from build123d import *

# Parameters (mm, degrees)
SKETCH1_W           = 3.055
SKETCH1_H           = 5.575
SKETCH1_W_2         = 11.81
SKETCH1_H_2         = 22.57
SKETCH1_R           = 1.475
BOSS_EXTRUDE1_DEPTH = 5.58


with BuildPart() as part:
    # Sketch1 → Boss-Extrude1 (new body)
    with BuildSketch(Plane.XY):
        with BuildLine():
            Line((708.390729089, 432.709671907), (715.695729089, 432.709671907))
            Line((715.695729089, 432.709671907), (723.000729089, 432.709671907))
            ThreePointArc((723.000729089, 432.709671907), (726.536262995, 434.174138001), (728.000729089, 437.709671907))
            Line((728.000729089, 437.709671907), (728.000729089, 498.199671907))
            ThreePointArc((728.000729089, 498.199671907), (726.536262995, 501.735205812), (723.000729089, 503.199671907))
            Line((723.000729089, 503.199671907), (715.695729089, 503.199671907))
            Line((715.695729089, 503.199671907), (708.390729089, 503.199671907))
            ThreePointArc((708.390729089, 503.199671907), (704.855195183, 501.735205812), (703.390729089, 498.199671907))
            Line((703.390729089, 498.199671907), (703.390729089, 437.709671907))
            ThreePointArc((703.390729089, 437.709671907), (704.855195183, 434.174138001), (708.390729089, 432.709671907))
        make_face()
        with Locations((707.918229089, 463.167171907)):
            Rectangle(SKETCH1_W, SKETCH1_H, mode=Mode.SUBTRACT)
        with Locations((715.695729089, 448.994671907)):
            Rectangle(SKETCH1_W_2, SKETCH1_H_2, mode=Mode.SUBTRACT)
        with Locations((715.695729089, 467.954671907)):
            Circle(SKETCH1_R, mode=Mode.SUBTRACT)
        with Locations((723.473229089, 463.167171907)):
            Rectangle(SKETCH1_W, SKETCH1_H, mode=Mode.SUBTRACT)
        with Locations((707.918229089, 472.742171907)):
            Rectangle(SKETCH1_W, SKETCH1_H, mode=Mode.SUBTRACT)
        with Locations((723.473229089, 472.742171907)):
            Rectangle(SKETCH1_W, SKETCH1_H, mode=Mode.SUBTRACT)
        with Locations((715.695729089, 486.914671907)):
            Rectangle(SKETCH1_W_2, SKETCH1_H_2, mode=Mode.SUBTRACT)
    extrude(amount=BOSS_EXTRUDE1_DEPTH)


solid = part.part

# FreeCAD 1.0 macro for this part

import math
import FreeCAD as App
import Part
import Sketcher

V = App.Vector


def add_polygon(sketch, points):
    """Adds a closed chain of lines whose ends are joined by coincident constraints."""
    first, n = sketch.GeometryCount, len(points)
    for a, b in zip(points, points[1:] + points[:1]):
        sketch.addGeometry(Part.LineSegment(App.Vector(*a, 0), App.Vector(*b, 0)), False)
    for i in range(n):
        sketch.addConstraint(Sketcher.Constraint("Coincident", first + i, 2, first + (i + 1) % n, 1))

doc = App.newDocument("Part")
body = doc.addObject("PartDesign::Body", "Body")

# Sketch on XY plane
sketch1 = body.newObject("Sketcher::SketchObject", "Sketch")
sketch1.AttachmentSupport = (doc.getObject("XY_Plane"), [""])
sketch1.MapMode = "FlatFace"
sketch1.addGeometry(Part.LineSegment(V(708.4, 432.7, 0), V(723, 432.7, 0)), False)  # 0
sketch1.addGeometry(Part.ArcOfCircle(Part.Circle(V(723, 437.7, 0), V(0, 0, 1), 5), math.radians(-90), math.radians(0)), False)  # 1
sketch1.addGeometry(Part.LineSegment(V(728, 437.7, 0), V(728, 498.2, 0)), False)  # 2
sketch1.addGeometry(Part.ArcOfCircle(Part.Circle(V(723, 498.2, 0), V(0, 0, 1), 5), math.radians(0), math.radians(90)), False)  # 3
sketch1.addGeometry(Part.LineSegment(V(723, 503.2, 0), V(708.4, 503.2, 0)), False)  # 4
sketch1.addGeometry(Part.ArcOfCircle(Part.Circle(V(708.4, 498.2, 0), V(0, 0, 1), 5), math.radians(90), math.radians(180)), False)  # 5
sketch1.addGeometry(Part.LineSegment(V(703.4, 498.2, 0), V(703.4, 437.7, 0)), False)  # 6
sketch1.addGeometry(Part.ArcOfCircle(Part.Circle(V(708.4, 437.7, 0), V(0, 0, 1), 5), math.radians(180), math.radians(270)), False)  # 7
add_polygon(sketch1, [(709.4, 460.4), (706.4, 460.4), (706.4, 466), (709.4, 466)])  # lines 8-11
add_polygon(sketch1, [(721.6, 437.7), (709.8, 437.7), (709.8, 460.3), (721.6, 460.3)])  # lines 12-15
sketch1.addGeometry(Part.Circle(V(715.7, 468, 0), V(0, 0, 1), 1.5), False)  # 16
add_polygon(sketch1, [(725, 460.4), (721.9, 460.4), (721.9, 466), (725, 466)])  # lines 17-20
add_polygon(sketch1, [(709.4, 470), (706.4, 470), (706.4, 475.5), (709.4, 475.5)])  # lines 21-24
add_polygon(sketch1, [(725, 470), (721.9, 470), (721.9, 475.5), (725, 475.5)])  # lines 25-28
add_polygon(sketch1, [(721.6, 475.6), (709.8, 475.6), (709.8, 498.2), (721.6, 498.2)])  # lines 29-32
sketch1.addConstraint([
    Sketcher.Constraint("Tangent", 0, 2, 1, 1),
    Sketcher.Constraint("Tangent", 1, 2, 2, 1),
    Sketcher.Constraint("Tangent", 2, 2, 3, 1),
    Sketcher.Constraint("Tangent", 3, 2, 4, 1),
    Sketcher.Constraint("Tangent", 4, 2, 5, 1),
    Sketcher.Constraint("Tangent", 5, 2, 6, 1),
    Sketcher.Constraint("Tangent", 6, 2, 7, 1),
    Sketcher.Constraint("Tangent", 7, 2, 0, 1),
    Sketcher.Constraint("Horizontal", 0),
    Sketcher.Constraint("Vertical", 2),
    Sketcher.Constraint("Horizontal", 4),
    Sketcher.Constraint("Vertical", 6),
    Sketcher.Constraint("Horizontal", 8),
    Sketcher.Constraint("Vertical", 9),
    Sketcher.Constraint("Horizontal", 10),
    Sketcher.Constraint("Vertical", 11),
    Sketcher.Constraint("Horizontal", 12),
    Sketcher.Constraint("Vertical", 13),
    Sketcher.Constraint("Horizontal", 14),
    Sketcher.Constraint("Vertical", 15),
    Sketcher.Constraint("Horizontal", 17),
    Sketcher.Constraint("Vertical", 18),
    Sketcher.Constraint("Horizontal", 19),
    Sketcher.Constraint("Vertical", 20),
    Sketcher.Constraint("Horizontal", 21),
    Sketcher.Constraint("Vertical", 22),
    Sketcher.Constraint("Horizontal", 23),
    Sketcher.Constraint("Vertical", 24),
    Sketcher.Constraint("Horizontal", 25),
    Sketcher.Constraint("Vertical", 26),
    Sketcher.Constraint("Horizontal", 27),
    Sketcher.Constraint("Vertical", 28),
    Sketcher.Constraint("Horizontal", 29),
    Sketcher.Constraint("Vertical", 30),
    Sketcher.Constraint("Horizontal", 31),
    Sketcher.Constraint("Vertical", 32),
    Sketcher.Constraint("Equal", 1, 3),
    Sketcher.Constraint("Equal", 3, 5),
    Sketcher.Constraint("Equal", 5, 7),
    Sketcher.Constraint("Horizontal", 6, 2, 12, 2),
    Sketcher.Constraint("Horizontal", 11, 2, 17, 2),
    Sketcher.Constraint("Horizontal", 10, 2, 18, 2),
    Sketcher.Constraint("Horizontal", 24, 2, 25, 2),
    Sketcher.Constraint("Horizontal", 23, 2, 26, 2),
    Sketcher.Constraint("Horizontal", 5, 2, 30, 2),
    Sketcher.Constraint("Vertical", 9, 2, 21, 2),
    Sketcher.Constraint("Vertical", 11, 2, 23, 2),
    Sketcher.Constraint("Vertical", 18, 2, 25, 2),
    Sketcher.Constraint("Vertical", 20, 2, 27, 2),
    Sketcher.Constraint("Vertical", 13, 2, 29, 2),
    Sketcher.Constraint("Vertical", 15, 2, 31, 2),
    Sketcher.Constraint("Equal", 10, 17),
    Sketcher.Constraint("Equal", 20, 22),
    Sketcher.Constraint("Equal", 15, 30),
    Sketcher.Constraint("Radius", 1, 5.0),
    Sketcher.Constraint("Diameter", 16, 2.95),
    Sketcher.Constraint("DistanceX", 8, 2, 7, 3, 2.0),
    Sketcher.Constraint("DistanceY", 9, 2, 16, 3, 2.0),
    Sketcher.Constraint("DistanceY", 9, 2, 21, 2, 4.0),
    Sketcher.Constraint("DistanceX", 0, 1, 0, 2, 14.61),
    Sketcher.Constraint("DistanceX", 12, 2, 12, 1, 11.81),
    Sketcher.Constraint("DistanceY", 2, 1, 2, 2, 60.49),
    Sketcher.Constraint("DistanceY", 13, 1, 13, 2, 22.57),
    Sketcher.Constraint("DistanceX", 7, 3, 12, 2, 1.4),
    Sketcher.Constraint("DistanceY", 13, 2, 11, 2, 0.1),
    Sketcher.Constraint("DistanceX", 11, 2, 17, 2, 12.5),
    Sketcher.Constraint("DistanceX", 14, 2, 19, 2, 3.4),
    Sketcher.Constraint("DistanceY", 23, 2, 29, 2, 0.1),
    Sketcher.Constraint("DistanceX", 10, 2, 16, 3, 6.25),
    Sketcher.Constraint("DistanceX", -1, 1, 1, 3, 723.000729),
    Sketcher.Constraint("DistanceY", -1, 1, 1, 3, 437.709672),
])
pad1 = body.newObject("PartDesign::Pad", "Pad")
pad1.Profile = sketch1
pad1.Length = 5.58

doc.recompute()
